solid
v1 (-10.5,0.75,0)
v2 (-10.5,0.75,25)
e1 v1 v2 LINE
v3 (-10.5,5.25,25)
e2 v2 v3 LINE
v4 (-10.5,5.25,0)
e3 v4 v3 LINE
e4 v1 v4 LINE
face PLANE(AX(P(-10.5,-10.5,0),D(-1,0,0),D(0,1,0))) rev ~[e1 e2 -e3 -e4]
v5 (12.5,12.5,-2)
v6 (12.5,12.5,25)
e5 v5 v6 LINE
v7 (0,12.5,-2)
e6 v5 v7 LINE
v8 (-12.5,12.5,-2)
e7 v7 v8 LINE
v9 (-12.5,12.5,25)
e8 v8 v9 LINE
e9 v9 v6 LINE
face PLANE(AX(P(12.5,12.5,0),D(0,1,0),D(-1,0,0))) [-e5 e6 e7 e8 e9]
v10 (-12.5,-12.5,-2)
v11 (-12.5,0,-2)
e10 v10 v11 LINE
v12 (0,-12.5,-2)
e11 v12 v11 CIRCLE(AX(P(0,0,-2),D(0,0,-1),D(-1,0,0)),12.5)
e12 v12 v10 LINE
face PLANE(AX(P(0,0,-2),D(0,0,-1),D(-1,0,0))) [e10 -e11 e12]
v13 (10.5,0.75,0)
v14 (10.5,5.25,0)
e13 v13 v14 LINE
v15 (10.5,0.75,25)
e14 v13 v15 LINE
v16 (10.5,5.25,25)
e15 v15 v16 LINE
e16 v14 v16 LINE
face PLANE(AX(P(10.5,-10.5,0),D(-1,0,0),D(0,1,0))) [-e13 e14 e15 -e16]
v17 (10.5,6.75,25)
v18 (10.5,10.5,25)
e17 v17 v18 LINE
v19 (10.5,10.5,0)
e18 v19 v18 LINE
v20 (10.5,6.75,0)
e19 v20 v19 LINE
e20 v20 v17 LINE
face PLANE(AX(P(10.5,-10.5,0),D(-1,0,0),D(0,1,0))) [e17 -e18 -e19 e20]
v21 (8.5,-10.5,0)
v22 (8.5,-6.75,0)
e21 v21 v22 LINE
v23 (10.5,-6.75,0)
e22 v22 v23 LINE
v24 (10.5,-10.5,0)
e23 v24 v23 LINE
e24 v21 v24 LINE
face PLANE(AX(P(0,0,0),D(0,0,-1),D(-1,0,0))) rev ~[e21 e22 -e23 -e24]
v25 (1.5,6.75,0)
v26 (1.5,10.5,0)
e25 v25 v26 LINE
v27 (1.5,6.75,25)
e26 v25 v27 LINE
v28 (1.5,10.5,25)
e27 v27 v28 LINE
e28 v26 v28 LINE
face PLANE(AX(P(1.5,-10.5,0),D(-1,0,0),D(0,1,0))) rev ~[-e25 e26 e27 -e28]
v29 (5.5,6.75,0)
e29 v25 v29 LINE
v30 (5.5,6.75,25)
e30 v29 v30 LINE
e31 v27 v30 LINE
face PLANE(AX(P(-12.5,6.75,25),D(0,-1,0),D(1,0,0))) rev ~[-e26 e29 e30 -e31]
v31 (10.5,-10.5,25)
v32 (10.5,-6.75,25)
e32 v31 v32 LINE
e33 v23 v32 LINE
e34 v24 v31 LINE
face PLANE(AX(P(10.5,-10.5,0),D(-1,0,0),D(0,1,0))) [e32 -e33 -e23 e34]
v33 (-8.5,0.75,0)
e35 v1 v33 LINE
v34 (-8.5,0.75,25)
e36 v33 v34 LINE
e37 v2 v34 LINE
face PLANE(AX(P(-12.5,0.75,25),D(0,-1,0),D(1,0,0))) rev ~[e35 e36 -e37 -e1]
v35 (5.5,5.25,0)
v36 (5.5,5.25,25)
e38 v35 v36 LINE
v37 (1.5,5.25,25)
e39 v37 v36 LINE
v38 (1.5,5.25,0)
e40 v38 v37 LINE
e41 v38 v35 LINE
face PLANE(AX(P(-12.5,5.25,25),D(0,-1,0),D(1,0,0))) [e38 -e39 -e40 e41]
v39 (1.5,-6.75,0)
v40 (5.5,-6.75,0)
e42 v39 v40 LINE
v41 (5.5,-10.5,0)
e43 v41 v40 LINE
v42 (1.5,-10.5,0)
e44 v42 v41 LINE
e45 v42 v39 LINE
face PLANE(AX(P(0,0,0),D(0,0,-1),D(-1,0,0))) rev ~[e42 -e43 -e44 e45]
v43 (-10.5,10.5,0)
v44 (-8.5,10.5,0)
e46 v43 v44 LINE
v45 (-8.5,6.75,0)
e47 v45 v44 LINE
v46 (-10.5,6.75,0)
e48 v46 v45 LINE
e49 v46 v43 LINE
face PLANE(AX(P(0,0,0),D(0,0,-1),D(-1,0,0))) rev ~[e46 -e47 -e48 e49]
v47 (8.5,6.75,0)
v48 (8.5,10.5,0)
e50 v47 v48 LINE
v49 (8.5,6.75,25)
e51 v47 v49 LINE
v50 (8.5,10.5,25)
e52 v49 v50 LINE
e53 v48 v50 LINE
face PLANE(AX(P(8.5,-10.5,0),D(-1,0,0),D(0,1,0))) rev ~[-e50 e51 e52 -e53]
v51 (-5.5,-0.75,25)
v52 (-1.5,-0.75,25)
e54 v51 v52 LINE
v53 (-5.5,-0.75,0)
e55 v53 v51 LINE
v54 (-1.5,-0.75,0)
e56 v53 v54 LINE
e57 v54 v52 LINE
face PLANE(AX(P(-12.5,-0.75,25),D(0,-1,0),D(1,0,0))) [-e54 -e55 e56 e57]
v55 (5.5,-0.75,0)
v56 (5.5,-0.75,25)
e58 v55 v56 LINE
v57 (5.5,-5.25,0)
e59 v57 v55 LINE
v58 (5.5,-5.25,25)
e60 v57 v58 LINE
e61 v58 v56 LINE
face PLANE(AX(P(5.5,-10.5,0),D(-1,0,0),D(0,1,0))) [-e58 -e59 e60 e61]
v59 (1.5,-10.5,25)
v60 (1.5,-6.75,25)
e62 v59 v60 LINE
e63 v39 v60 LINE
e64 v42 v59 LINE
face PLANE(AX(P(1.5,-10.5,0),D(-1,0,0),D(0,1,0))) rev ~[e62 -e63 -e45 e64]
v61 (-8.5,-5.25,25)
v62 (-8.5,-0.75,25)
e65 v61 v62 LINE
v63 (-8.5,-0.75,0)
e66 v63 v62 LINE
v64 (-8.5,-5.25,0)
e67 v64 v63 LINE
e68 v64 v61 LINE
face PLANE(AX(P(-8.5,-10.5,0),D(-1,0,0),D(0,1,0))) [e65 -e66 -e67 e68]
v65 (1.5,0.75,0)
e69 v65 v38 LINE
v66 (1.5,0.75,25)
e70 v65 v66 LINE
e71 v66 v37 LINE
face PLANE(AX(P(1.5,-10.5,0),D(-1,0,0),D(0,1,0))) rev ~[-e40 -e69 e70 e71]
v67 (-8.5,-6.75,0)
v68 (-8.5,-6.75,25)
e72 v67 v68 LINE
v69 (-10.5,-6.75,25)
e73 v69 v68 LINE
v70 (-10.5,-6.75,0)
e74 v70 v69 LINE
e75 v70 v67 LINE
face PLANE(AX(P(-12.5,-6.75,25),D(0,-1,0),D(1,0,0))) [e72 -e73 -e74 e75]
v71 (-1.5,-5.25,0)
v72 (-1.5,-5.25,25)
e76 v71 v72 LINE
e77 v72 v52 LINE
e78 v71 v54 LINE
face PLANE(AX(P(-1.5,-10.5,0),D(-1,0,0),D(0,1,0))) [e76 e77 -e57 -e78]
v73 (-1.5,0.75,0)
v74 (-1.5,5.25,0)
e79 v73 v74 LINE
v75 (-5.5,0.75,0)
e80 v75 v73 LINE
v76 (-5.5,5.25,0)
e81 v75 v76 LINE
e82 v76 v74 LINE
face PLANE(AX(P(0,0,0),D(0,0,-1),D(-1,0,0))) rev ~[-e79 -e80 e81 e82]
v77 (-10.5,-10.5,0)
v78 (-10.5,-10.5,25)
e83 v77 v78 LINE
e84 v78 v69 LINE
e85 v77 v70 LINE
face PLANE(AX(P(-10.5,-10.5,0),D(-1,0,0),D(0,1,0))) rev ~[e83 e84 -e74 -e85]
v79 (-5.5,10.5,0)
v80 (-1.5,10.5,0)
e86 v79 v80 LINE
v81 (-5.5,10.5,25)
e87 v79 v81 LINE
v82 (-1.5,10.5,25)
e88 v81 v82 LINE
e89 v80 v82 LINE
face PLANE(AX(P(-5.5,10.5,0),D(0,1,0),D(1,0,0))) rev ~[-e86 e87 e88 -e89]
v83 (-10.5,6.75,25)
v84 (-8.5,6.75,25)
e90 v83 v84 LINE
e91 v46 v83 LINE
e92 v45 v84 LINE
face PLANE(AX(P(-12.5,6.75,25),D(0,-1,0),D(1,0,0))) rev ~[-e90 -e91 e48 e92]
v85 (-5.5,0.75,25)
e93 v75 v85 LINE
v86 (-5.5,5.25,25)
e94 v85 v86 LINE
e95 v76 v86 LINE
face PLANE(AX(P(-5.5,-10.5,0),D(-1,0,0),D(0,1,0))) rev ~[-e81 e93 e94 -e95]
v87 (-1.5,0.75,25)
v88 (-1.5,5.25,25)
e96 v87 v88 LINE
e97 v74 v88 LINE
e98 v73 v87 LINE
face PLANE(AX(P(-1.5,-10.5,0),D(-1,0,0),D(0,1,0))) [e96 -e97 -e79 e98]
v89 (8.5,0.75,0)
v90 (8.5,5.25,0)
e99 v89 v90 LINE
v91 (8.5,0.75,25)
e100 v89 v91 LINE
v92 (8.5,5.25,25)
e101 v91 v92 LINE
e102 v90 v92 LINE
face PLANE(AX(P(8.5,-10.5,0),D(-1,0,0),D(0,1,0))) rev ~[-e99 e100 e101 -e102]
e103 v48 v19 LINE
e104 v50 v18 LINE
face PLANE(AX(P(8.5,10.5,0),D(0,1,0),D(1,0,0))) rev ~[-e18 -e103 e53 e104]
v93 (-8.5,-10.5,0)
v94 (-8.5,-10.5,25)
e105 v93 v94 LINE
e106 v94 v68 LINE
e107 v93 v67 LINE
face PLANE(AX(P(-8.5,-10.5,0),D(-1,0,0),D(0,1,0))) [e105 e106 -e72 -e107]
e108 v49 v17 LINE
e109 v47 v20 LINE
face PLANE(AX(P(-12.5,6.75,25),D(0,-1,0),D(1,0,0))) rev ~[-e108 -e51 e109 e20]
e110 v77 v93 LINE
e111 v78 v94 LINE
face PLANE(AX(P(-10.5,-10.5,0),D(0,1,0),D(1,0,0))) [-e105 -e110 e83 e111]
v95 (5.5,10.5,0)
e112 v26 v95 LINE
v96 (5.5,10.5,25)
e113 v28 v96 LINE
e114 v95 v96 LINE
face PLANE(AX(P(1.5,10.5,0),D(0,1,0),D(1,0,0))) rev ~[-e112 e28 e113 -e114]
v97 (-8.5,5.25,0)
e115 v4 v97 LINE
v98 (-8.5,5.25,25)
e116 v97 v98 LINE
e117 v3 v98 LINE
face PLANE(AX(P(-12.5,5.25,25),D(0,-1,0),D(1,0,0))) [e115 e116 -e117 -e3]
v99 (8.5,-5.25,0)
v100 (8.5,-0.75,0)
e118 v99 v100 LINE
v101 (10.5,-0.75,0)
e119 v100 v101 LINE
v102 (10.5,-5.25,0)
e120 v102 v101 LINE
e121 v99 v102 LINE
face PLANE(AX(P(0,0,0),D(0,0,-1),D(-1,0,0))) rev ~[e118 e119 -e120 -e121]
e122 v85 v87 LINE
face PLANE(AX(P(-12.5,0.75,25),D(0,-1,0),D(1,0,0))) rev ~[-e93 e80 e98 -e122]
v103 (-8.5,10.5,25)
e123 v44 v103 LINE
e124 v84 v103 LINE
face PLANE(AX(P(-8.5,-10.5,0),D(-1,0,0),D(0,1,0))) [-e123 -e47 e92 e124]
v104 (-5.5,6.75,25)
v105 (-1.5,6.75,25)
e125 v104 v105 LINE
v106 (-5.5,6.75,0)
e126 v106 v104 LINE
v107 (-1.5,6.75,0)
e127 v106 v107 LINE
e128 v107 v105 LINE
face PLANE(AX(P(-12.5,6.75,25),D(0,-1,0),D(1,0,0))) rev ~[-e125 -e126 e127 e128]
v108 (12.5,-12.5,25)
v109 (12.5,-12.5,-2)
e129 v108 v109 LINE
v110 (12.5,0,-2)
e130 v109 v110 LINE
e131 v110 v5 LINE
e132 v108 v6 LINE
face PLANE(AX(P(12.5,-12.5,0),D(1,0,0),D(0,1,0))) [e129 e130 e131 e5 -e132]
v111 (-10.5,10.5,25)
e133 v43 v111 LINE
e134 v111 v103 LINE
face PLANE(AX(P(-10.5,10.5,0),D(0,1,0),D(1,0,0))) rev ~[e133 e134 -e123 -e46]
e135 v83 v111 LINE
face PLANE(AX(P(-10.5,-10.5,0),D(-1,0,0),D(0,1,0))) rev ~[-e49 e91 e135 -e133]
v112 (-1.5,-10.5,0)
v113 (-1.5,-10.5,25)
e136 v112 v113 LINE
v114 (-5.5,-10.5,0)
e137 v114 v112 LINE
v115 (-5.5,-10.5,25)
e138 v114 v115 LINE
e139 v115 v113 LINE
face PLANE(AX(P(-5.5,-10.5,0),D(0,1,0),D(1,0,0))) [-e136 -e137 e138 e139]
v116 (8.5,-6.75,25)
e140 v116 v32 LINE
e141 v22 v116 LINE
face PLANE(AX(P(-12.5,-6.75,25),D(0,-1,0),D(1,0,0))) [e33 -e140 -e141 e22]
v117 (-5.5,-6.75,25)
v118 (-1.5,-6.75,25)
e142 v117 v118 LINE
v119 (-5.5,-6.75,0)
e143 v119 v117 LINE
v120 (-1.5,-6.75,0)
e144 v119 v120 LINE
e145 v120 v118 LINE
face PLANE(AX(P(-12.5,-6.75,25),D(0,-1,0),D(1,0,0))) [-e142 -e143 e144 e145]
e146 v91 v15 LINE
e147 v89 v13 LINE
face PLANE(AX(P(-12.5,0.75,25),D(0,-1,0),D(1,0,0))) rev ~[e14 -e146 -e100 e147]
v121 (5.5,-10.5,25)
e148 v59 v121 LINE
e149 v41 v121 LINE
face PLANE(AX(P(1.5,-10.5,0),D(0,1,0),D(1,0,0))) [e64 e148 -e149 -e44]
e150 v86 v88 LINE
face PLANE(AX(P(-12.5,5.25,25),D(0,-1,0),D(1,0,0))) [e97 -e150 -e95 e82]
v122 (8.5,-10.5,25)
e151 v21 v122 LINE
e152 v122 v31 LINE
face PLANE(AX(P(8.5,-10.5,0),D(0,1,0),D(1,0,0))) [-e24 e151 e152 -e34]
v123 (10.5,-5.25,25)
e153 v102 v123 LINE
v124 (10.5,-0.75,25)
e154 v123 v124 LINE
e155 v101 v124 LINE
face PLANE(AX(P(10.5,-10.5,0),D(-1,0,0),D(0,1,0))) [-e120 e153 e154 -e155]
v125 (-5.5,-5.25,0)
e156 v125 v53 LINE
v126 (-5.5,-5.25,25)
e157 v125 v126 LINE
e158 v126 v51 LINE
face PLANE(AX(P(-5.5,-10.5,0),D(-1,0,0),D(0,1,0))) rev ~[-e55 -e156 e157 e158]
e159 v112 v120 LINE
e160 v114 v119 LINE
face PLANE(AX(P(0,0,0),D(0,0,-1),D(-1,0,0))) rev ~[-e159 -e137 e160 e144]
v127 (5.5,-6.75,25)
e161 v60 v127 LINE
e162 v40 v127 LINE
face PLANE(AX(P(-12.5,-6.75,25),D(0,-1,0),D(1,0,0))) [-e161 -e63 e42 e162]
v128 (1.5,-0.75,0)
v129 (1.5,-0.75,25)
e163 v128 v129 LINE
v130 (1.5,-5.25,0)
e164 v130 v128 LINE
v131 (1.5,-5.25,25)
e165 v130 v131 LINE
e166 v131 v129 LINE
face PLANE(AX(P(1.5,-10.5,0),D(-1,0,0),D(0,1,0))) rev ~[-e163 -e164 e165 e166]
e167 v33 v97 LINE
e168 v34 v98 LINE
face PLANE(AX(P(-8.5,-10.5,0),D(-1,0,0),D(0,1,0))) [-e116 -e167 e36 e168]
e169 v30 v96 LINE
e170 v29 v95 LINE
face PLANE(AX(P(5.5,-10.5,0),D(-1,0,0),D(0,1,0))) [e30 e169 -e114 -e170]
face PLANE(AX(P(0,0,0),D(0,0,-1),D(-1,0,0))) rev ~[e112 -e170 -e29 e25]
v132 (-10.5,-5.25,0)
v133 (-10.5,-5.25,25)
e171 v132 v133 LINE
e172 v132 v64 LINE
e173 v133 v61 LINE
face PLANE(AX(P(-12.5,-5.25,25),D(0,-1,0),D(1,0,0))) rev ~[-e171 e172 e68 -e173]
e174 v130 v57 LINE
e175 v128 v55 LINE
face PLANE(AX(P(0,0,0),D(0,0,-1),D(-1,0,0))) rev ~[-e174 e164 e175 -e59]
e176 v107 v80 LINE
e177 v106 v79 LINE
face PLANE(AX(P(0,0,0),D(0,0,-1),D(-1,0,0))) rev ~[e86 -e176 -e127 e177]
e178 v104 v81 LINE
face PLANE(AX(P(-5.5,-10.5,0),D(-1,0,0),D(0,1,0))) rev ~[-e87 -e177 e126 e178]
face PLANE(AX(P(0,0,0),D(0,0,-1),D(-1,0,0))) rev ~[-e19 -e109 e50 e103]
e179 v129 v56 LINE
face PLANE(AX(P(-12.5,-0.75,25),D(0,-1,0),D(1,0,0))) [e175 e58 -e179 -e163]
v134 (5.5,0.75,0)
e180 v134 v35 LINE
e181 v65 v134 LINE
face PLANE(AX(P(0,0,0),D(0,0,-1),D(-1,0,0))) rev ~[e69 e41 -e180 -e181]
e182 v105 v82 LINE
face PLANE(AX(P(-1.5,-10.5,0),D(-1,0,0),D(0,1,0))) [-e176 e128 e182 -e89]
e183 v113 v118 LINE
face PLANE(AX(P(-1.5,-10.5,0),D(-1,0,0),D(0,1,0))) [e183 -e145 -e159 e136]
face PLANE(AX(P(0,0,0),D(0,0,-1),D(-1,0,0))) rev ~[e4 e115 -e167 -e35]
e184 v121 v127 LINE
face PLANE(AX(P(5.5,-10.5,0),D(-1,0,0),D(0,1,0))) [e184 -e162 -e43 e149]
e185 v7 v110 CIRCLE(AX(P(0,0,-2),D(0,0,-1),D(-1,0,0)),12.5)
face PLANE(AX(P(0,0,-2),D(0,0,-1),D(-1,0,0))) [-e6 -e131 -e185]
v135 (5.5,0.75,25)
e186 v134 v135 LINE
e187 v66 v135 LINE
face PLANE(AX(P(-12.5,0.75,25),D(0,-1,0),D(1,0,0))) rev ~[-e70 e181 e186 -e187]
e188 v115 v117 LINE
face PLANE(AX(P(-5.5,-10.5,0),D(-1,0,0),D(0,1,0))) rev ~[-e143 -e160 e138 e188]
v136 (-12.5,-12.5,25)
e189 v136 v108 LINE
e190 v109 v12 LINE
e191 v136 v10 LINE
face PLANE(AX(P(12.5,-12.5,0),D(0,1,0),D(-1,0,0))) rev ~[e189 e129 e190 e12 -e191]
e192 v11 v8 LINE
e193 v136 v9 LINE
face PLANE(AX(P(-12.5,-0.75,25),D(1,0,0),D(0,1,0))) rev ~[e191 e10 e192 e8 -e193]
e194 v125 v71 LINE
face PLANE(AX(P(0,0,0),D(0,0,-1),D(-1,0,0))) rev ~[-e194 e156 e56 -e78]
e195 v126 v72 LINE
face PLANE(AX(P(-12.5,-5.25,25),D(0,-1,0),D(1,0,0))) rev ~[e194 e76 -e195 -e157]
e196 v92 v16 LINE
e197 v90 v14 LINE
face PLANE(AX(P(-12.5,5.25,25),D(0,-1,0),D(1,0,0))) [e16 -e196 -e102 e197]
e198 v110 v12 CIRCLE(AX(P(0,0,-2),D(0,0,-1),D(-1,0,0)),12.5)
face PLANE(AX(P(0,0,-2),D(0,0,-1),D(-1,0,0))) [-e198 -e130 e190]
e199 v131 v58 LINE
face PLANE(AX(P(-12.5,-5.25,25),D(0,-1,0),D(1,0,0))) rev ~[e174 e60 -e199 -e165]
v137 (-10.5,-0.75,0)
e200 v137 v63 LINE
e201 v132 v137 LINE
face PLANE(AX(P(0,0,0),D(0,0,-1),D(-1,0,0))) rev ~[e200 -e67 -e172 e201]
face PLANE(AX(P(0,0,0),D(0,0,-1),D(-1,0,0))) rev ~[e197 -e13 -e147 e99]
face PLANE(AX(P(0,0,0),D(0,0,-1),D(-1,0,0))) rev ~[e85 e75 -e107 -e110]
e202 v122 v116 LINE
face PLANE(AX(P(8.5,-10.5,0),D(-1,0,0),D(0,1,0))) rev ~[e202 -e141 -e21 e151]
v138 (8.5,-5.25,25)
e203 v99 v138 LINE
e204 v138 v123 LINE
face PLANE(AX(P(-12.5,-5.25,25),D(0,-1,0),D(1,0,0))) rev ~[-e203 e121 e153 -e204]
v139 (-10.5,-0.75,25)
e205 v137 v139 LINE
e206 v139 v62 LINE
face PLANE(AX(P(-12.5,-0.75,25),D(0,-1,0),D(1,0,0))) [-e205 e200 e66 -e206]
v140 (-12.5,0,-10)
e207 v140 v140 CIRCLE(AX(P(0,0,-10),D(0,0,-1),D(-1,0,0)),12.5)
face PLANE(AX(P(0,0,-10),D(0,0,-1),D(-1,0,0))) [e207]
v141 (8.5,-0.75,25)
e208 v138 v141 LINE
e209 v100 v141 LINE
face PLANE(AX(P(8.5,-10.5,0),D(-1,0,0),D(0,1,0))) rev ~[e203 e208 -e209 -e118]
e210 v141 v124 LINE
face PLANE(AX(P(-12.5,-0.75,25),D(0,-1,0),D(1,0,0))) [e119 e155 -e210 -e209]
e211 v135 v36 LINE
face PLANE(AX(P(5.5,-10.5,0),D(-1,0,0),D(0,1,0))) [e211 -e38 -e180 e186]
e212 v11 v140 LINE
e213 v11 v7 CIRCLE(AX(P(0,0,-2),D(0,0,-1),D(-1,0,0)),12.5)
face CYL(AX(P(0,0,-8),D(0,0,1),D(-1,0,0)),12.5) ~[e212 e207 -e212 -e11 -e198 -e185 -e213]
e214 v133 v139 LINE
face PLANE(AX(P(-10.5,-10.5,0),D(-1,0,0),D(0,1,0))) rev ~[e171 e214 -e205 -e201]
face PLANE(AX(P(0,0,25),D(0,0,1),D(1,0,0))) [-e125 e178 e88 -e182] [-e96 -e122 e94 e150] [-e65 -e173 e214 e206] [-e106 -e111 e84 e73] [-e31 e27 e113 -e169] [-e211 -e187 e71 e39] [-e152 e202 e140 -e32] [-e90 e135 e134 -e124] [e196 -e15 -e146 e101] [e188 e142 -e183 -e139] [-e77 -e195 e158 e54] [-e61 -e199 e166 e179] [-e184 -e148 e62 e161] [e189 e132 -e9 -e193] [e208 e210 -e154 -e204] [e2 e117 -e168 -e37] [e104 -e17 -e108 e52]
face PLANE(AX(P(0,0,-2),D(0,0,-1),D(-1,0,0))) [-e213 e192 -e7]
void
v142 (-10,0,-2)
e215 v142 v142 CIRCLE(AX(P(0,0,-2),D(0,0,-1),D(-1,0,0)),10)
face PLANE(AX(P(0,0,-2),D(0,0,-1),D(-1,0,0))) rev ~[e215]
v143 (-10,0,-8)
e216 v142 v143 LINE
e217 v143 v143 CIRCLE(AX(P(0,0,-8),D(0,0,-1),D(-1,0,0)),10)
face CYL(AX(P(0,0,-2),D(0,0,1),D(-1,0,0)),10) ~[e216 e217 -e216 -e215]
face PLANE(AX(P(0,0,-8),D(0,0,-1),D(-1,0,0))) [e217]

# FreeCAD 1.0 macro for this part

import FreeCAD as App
import Part
import Sketcher

V = App.Vector
Q = App.Units.Quantity


def add_polygon(sketch, points):
    """Adds a closed chain of lines whose ends are joined by coincident constraints."""
    first, n = sketch.GeometryCount, len(points)
    for a, b in zip(points, points[1:] + points[:1]):
        sketch.addGeometry(Part.LineSegment(App.Vector(*a, 0), App.Vector(*b, 0)), False)
    for i in range(n):
        sketch.addConstraint(Sketcher.Constraint("Coincident", first + i, 2, first + (i + 1) % n, 1))

doc = App.newDocument("Part")
body = doc.addObject("PartDesign::Body", "Body")

sketch1 = body.newObject("Sketcher::SketchObject", "Sketch")
sketch1.AttachmentSupport = (doc.getObject("XY_Plane"), [""])
sketch1.MapMode = "FlatFace"
add_polygon(sketch1, [(-12.5, 12.5), (-12.5, -12.5), (12.5, -12.5), (12.5, 12.5)])
add_polygon(sketch1, [(-8.5, -10.5), (-10.5, -10.5), (-10.5, 10.5), (-8.5, 10.5)])
add_polygon(sketch1, [(-1.5, -10.5), (-5.5, -10.5), (-5.5, 10.5), (-1.5, 10.5)])
add_polygon(sketch1, [(5.5, -10.5), (1.5, -10.5), (1.5, 10.5), (5.5, 10.5)])
add_polygon(sketch1, [(10.5, -10.5), (8.5, -10.5), (8.5, 10.5), (10.5, 10.5)])
sketch1.addConstraint([
    Sketcher.Constraint("Vertical", 0),
    Sketcher.Constraint("Horizontal", 1),
    Sketcher.Constraint("Vertical", 2),
    Sketcher.Constraint("Horizontal", 3),
    Sketcher.Constraint("Horizontal", 4),
    Sketcher.Constraint("Vertical", 5),
    Sketcher.Constraint("Horizontal", 6),
    Sketcher.Constraint("Vertical", 7),
    Sketcher.Constraint("Horizontal", 8),
    Sketcher.Constraint("Vertical", 9),
    Sketcher.Constraint("Horizontal", 10),
    Sketcher.Constraint("Vertical", 11),
    Sketcher.Constraint("Horizontal", 12),
    Sketcher.Constraint("Vertical", 13),
    Sketcher.Constraint("Horizontal", 14),
    Sketcher.Constraint("Vertical", 15),
    Sketcher.Constraint("Horizontal", 16),
    Sketcher.Constraint("Vertical", 17),
    Sketcher.Constraint("Horizontal", 18),
    Sketcher.Constraint("Vertical", 19),
    Sketcher.Constraint("Symmetric", 0, 2, 2, 2, -1, 1),
    Sketcher.Constraint("Symmetric", 10, 2, 12, 2, -1, 1),
    Sketcher.Constraint("Symmetric", 8, 2, 14, 2, -1, 1),
    Sketcher.Constraint("Symmetric", 6, 2, 16, 2, -1, 1),
    Sketcher.Constraint("Symmetric", 4, 2, 18, 2, -1, 1),
    Sketcher.Constraint("Horizontal", 7, 2, 8, 2),
    Sketcher.Constraint("Horizontal", 6, 2, 9, 2),
    Sketcher.Constraint("Horizontal", 11, 2, 12, 2),
    Sketcher.Constraint("Equal", 3, 0),
    Sketcher.Constraint("DistanceX", 1, 1, 1, 2, Q("25 mm")),
    Sketcher.Constraint("DistanceX", 4, 2, 4, 1, Q("2 mm")),
    Sketcher.Constraint("DistanceX", 8, 2, 8, 1, Q("4 mm")),
    Sketcher.Constraint("DistanceY", 5, 1, 5, 2, Q("21 mm")),
    Sketcher.Constraint("DistanceX", 0, 2, 4, 2, Q("2 mm")),
    Sketcher.Constraint("DistanceX", 7, 2, 8, 2, Q("3 mm")),
])
pad1 = body.newObject("PartDesign::Pad", "Pad")
pad1.Profile = sketch1
pad1.Length = 25

sketch2 = body.newObject("Sketcher::SketchObject", "Sketch001")
sketch2.AttachmentSupport = (doc.getObject("XY_Plane"), [""])
sketch2.MapMode = "FlatFace"
add_polygon(sketch2, [(12, 12), (12, -12), (-12, -12), (-12, 12)])
sketch2.addConstraint([
    Sketcher.Constraint("Vertical", 0),
    Sketcher.Constraint("Horizontal", 1),
    Sketcher.Constraint("Vertical", 2),
    Sketcher.Constraint("Horizontal", 3),
    Sketcher.Constraint("Symmetric", 0, 2, 2, 2, -1, 1),
    Sketcher.Constraint("Equal", 3, 0),
    Sketcher.Constraint("DistanceX", 1, 2, 1, 1, Q("25 mm")),
])
pad2 = body.newObject("PartDesign::Pad", "Pad001")
pad2.Profile = sketch2
pad2.Length = 2
pad2.Reversed = True

sketch3 = body.newObject("Sketcher::SketchObject", "Sketch002")
sketch3.AttachmentSupport = (doc.getObject("XY_Plane"), [""])
sketch3.MapMode = "FlatFace"
sketch3.AttachmentOffset = App.Placement(V(0, 0, 25), App.Rotation())
add_polygon(sketch3, [(-12.5, 0.8), (-12.5, -0.8), (12.5, -0.8), (12.5, 0.8)])
add_polygon(sketch3, [(-12.5, 6.8), (-12.5, 5.2), (12.5, 5.2), (12.5, 6.8)])
add_polygon(sketch3, [(-12.5, -5.2), (-12.5, -6.8), (12.5, -6.8), (12.5, -5.2)])
sketch3.addConstraint([
    Sketcher.Constraint("Vertical", 0),
    Sketcher.Constraint("Horizontal", 1),
    Sketcher.Constraint("Vertical", 2),
    Sketcher.Constraint("Horizontal", 3),
    Sketcher.Constraint("Vertical", 4),
    Sketcher.Constraint("Horizontal", 5),
    Sketcher.Constraint("Vertical", 6),
    Sketcher.Constraint("Horizontal", 7),
    Sketcher.Constraint("Vertical", 8),
    Sketcher.Constraint("Horizontal", 9),
    Sketcher.Constraint("Vertical", 10),
    Sketcher.Constraint("Horizontal", 11),
    Sketcher.Constraint("Symmetric", 0, 2, 2, 2, -1, 1),
    Sketcher.Constraint("Symmetric", 6, 2, 8, 2, -1, 1),
    Sketcher.Constraint("Symmetric", 4, 2, 10, 2, -1, 1),
    Sketcher.Constraint("Vertical", 3, 2, 4, 2),
    Sketcher.Constraint("Vertical", 2, 2, 5, 2),
    Sketcher.Constraint("Equal", 2, 4),
    Sketcher.Constraint("DistanceX", 1, 1, 1, 2, Q("25 mm")),
    Sketcher.Constraint("DistanceY", 0, 2, 0, 1, Q("1.5 mm")),
    Sketcher.Constraint("DistanceY", 0, 2, 4, 2, Q("6 mm")),
])
pad3 = body.newObject("PartDesign::Pad", "Pad002")
pad3.Profile = sketch3
pad3.Length = 25
pad3.Reversed = True

sketch4 = body.newObject("Sketcher::SketchObject", "Sketch003")
sketch4.AttachmentSupport = (doc.getObject("XY_Plane"), [""])
sketch4.MapMode = "FlatFace"
sketch4.AttachmentOffset = App.Placement(V(0, 0, -2), App.Rotation())
sketch4.addGeometry([
    Part.Circle(V(0, 0, 0), V(0, 0, 1), 12),
    Part.Circle(V(0, 0, 0), V(0, 0, 1), 10),
], False)
sketch4.addConstraint([
    Sketcher.Constraint("Coincident", 0, 3, -1, 1),
    Sketcher.Constraint("Coincident", 1, 3, -1, 1),
    Sketcher.Constraint("Diameter", 0, Q("25 mm")),
    Sketcher.Constraint("Diameter", 1, Q("20 mm")),
])
pad4 = body.newObject("PartDesign::Pad", "Pad003")
pad4.Profile = sketch4
pad4.Length = 6
pad4.Reversed = True

sketch5 = body.newObject("Sketcher::SketchObject", "Sketch004")
sketch5.AttachmentSupport = (doc.getObject("XY_Plane"), [""])
sketch5.MapMode = "FlatFace"
sketch5.AttachmentOffset = App.Placement(V(0, 0, -8), App.Rotation())
sketch5.addGeometry(Part.Circle(V(0, 0, 0), V(0, 0, 1), 12), False)
sketch5.addConstraint([
    Sketcher.Constraint("Coincident", 0, 3, -1, 1),
    Sketcher.Constraint("Diameter", 0, Q("25 mm")),
])
pad5 = body.newObject("PartDesign::Pad", "Pad004")
pad5.Profile = sketch5
pad5.Length = 2
pad5.Reversed = True

doc.recompute()
